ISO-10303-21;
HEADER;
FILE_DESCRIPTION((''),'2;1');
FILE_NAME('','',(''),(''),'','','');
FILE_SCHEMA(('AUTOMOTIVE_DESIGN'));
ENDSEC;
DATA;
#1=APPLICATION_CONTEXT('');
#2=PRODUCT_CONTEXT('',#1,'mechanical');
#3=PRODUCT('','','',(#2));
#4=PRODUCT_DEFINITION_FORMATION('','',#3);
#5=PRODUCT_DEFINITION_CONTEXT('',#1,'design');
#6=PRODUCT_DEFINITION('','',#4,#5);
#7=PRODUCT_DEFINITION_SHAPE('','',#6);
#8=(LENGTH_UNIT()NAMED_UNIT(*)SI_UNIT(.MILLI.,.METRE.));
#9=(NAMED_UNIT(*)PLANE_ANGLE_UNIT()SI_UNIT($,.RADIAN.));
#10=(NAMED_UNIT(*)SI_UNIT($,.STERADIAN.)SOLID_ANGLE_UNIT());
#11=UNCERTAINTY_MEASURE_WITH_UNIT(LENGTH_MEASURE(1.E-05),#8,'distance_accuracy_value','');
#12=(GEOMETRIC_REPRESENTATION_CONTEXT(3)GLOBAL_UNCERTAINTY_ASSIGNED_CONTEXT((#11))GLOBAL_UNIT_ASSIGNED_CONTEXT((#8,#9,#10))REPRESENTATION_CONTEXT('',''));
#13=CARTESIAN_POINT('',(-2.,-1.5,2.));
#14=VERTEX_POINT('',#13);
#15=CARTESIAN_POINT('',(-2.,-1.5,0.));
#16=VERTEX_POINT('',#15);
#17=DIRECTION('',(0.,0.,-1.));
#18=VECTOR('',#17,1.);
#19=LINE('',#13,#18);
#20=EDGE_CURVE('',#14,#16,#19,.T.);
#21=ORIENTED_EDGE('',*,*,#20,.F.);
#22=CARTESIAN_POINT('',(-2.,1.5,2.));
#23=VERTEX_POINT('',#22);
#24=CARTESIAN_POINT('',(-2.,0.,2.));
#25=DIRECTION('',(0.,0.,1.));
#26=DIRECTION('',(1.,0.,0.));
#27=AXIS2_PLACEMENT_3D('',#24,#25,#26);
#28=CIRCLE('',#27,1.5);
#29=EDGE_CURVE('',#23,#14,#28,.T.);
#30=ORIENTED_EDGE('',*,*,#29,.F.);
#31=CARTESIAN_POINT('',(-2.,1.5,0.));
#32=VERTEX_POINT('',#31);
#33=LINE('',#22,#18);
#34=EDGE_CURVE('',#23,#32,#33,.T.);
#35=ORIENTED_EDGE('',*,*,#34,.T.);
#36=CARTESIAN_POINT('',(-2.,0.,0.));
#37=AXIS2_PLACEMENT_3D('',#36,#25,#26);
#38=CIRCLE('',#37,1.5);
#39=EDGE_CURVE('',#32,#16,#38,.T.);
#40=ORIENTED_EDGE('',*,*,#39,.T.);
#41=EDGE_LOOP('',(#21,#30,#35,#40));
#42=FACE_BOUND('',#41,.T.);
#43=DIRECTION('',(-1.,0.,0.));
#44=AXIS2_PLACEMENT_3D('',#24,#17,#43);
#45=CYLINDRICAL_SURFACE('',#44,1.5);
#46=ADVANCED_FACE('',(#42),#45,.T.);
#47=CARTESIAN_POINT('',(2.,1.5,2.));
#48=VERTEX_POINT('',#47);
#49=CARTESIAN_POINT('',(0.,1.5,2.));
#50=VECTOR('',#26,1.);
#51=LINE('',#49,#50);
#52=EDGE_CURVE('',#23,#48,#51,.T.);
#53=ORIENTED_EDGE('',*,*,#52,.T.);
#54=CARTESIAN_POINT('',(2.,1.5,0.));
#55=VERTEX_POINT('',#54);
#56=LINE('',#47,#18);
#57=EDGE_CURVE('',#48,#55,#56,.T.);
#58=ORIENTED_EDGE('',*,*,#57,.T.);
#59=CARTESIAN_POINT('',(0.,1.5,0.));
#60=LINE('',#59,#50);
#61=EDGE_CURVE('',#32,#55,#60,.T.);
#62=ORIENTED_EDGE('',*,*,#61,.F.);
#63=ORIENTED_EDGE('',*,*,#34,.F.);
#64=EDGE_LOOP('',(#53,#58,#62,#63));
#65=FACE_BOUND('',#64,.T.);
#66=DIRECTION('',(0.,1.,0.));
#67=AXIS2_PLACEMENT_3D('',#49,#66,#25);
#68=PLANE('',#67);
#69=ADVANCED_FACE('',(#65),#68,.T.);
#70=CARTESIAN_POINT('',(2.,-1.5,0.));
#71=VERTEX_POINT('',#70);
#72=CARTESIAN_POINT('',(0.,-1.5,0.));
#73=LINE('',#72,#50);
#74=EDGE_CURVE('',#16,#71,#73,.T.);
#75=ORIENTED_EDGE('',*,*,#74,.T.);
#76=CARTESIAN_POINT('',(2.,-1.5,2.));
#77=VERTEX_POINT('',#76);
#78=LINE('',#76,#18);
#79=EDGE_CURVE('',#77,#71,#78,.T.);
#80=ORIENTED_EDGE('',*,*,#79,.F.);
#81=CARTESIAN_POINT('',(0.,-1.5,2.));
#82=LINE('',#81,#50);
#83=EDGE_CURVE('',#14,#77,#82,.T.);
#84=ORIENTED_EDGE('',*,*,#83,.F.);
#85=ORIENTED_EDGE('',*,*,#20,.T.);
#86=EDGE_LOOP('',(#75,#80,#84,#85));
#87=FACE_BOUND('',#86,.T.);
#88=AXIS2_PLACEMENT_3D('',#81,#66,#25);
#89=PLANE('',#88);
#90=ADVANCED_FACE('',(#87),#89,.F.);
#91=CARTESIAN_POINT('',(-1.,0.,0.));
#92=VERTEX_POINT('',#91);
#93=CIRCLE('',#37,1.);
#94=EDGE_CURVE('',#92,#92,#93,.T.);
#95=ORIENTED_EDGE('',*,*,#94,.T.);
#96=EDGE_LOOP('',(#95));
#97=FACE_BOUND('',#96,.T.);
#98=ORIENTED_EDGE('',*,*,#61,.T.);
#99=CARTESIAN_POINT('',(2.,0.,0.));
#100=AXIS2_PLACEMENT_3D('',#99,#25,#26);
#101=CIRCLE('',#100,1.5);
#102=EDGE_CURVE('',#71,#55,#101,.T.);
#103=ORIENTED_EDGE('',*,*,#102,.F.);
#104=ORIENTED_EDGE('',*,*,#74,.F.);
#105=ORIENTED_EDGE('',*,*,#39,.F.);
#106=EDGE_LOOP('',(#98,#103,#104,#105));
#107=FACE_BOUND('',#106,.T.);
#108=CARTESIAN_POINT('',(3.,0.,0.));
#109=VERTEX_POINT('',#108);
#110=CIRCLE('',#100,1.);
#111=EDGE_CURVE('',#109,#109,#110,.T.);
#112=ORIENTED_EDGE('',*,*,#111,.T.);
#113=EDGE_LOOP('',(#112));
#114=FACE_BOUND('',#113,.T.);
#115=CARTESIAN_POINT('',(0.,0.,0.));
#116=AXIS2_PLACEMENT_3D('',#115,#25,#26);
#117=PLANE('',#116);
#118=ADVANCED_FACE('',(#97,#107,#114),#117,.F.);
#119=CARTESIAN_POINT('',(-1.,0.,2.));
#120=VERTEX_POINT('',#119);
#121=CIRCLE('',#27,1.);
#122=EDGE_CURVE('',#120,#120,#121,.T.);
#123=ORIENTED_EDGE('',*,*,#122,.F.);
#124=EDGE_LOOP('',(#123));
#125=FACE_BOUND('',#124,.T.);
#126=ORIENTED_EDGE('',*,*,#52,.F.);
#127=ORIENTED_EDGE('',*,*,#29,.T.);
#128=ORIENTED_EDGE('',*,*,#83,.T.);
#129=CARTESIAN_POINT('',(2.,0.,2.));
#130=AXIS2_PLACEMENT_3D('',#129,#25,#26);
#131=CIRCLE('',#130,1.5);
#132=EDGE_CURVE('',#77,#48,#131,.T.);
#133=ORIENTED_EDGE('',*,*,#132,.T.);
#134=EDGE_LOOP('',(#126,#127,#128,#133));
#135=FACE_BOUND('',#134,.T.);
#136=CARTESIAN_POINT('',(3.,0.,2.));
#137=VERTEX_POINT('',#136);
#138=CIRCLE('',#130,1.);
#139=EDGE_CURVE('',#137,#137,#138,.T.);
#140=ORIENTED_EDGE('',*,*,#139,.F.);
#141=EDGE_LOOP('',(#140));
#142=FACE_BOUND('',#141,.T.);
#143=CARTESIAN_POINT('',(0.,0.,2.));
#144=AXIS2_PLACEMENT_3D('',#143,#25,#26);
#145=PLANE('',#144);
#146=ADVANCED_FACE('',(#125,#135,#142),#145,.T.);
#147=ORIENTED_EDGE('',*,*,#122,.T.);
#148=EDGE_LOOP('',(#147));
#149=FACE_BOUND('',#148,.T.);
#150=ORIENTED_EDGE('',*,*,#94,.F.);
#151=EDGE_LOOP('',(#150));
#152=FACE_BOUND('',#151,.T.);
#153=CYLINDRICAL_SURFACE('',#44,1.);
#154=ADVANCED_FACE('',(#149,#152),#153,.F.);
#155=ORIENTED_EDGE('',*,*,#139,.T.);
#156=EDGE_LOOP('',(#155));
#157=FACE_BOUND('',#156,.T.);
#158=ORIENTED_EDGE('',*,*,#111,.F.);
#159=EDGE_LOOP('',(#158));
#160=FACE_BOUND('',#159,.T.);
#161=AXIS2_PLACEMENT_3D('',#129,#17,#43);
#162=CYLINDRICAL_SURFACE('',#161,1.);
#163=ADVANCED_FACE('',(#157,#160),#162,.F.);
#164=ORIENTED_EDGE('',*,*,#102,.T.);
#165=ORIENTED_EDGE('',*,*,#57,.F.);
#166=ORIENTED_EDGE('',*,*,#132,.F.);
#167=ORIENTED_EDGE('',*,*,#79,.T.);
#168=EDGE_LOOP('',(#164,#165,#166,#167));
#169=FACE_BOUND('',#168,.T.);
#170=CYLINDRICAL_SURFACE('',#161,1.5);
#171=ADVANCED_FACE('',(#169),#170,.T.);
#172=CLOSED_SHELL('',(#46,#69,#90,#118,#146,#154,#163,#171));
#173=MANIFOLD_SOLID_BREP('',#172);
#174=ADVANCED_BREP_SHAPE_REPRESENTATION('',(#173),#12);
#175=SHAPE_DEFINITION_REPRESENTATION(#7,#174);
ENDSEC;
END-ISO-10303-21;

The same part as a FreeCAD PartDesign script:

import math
import FreeCAD as App
import Part
import Sketcher

doc = App.newDocument("Part")
body = doc.addObject("PartDesign::Body", "Body")

# Sketch on XY plane
sketch1 = doc.addObject("Sketcher::SketchObject", "Sketch")
body.addObject(sketch1)
sketch1.AttachmentSupport = (doc.XY_Plane, [""])
sketch1.MapMode = "FlatFace"
sketch1.addGeometry(Part.ArcOfCircle(Part.Circle(App.Vector(-2, 0, 0), App.Vector(0, 0, 1), 1.5), math.radians(90), math.radians(270)), False)
sketch1.addGeometry(Part.LineSegment(App.Vector(-2, -1.5, 0), App.Vector(2, -1.5, 0)), False)
sketch1.addGeometry(Part.ArcOfCircle(Part.Circle(App.Vector(2, 0, 0), App.Vector(0, 0, 1), 1.5), math.radians(-90), math.radians(90)), False)
sketch1.addGeometry(Part.LineSegment(App.Vector(2, 1.5, 0), App.Vector(-2, 1.5, 0)), False)
sketch1.addGeometry(Part.Circle(App.Vector(-2, 0, 0), App.Vector(0, 0, 1), 1), False)
sketch1.addGeometry(Part.Circle(App.Vector(2, 0, 0), App.Vector(0, 0, 1), 1), False)
sketch1.addConstraint(Sketcher.Constraint("Tangent", 0, 2, 1, 1))
sketch1.addConstraint(Sketcher.Constraint("Tangent", 1, 2, 2, 1))
sketch1.addConstraint(Sketcher.Constraint("Tangent", 2, 2, 3, 1))
sketch1.addConstraint(Sketcher.Constraint("Tangent", 3, 2, 0, 1))
sketch1.addConstraint(Sketcher.Constraint("Horizontal", 1))
sketch1.addConstraint(Sketcher.Constraint("Horizontal", 3))
sketch1.addConstraint(Sketcher.Constraint("Coincident", 4, 3, 0, 3))
sketch1.addConstraint(Sketcher.Constraint("Coincident", 5, 3, 2, 3))
sketch1.addConstraint(Sketcher.Constraint("Equal", 4, 5))
sketch1.addConstraint(Sketcher.Constraint("Symmetric", 0, 3, 2, 3, -1, 1))
sketch1.addConstraint(Sketcher.Constraint("Diameter", 4, 2.0))
sketch1.addConstraint(Sketcher.Constraint("Radius", 0, 1.5))
sketch1.addConstraint(Sketcher.Constraint("DistanceX", 1, 1, 1, 2, 4.0))
pad1 = doc.addObject("PartDesign::Pad", "Pad")
body.addObject(pad1)
pad1.Profile = sketch1
pad1.Length = 2

doc.recompute()
